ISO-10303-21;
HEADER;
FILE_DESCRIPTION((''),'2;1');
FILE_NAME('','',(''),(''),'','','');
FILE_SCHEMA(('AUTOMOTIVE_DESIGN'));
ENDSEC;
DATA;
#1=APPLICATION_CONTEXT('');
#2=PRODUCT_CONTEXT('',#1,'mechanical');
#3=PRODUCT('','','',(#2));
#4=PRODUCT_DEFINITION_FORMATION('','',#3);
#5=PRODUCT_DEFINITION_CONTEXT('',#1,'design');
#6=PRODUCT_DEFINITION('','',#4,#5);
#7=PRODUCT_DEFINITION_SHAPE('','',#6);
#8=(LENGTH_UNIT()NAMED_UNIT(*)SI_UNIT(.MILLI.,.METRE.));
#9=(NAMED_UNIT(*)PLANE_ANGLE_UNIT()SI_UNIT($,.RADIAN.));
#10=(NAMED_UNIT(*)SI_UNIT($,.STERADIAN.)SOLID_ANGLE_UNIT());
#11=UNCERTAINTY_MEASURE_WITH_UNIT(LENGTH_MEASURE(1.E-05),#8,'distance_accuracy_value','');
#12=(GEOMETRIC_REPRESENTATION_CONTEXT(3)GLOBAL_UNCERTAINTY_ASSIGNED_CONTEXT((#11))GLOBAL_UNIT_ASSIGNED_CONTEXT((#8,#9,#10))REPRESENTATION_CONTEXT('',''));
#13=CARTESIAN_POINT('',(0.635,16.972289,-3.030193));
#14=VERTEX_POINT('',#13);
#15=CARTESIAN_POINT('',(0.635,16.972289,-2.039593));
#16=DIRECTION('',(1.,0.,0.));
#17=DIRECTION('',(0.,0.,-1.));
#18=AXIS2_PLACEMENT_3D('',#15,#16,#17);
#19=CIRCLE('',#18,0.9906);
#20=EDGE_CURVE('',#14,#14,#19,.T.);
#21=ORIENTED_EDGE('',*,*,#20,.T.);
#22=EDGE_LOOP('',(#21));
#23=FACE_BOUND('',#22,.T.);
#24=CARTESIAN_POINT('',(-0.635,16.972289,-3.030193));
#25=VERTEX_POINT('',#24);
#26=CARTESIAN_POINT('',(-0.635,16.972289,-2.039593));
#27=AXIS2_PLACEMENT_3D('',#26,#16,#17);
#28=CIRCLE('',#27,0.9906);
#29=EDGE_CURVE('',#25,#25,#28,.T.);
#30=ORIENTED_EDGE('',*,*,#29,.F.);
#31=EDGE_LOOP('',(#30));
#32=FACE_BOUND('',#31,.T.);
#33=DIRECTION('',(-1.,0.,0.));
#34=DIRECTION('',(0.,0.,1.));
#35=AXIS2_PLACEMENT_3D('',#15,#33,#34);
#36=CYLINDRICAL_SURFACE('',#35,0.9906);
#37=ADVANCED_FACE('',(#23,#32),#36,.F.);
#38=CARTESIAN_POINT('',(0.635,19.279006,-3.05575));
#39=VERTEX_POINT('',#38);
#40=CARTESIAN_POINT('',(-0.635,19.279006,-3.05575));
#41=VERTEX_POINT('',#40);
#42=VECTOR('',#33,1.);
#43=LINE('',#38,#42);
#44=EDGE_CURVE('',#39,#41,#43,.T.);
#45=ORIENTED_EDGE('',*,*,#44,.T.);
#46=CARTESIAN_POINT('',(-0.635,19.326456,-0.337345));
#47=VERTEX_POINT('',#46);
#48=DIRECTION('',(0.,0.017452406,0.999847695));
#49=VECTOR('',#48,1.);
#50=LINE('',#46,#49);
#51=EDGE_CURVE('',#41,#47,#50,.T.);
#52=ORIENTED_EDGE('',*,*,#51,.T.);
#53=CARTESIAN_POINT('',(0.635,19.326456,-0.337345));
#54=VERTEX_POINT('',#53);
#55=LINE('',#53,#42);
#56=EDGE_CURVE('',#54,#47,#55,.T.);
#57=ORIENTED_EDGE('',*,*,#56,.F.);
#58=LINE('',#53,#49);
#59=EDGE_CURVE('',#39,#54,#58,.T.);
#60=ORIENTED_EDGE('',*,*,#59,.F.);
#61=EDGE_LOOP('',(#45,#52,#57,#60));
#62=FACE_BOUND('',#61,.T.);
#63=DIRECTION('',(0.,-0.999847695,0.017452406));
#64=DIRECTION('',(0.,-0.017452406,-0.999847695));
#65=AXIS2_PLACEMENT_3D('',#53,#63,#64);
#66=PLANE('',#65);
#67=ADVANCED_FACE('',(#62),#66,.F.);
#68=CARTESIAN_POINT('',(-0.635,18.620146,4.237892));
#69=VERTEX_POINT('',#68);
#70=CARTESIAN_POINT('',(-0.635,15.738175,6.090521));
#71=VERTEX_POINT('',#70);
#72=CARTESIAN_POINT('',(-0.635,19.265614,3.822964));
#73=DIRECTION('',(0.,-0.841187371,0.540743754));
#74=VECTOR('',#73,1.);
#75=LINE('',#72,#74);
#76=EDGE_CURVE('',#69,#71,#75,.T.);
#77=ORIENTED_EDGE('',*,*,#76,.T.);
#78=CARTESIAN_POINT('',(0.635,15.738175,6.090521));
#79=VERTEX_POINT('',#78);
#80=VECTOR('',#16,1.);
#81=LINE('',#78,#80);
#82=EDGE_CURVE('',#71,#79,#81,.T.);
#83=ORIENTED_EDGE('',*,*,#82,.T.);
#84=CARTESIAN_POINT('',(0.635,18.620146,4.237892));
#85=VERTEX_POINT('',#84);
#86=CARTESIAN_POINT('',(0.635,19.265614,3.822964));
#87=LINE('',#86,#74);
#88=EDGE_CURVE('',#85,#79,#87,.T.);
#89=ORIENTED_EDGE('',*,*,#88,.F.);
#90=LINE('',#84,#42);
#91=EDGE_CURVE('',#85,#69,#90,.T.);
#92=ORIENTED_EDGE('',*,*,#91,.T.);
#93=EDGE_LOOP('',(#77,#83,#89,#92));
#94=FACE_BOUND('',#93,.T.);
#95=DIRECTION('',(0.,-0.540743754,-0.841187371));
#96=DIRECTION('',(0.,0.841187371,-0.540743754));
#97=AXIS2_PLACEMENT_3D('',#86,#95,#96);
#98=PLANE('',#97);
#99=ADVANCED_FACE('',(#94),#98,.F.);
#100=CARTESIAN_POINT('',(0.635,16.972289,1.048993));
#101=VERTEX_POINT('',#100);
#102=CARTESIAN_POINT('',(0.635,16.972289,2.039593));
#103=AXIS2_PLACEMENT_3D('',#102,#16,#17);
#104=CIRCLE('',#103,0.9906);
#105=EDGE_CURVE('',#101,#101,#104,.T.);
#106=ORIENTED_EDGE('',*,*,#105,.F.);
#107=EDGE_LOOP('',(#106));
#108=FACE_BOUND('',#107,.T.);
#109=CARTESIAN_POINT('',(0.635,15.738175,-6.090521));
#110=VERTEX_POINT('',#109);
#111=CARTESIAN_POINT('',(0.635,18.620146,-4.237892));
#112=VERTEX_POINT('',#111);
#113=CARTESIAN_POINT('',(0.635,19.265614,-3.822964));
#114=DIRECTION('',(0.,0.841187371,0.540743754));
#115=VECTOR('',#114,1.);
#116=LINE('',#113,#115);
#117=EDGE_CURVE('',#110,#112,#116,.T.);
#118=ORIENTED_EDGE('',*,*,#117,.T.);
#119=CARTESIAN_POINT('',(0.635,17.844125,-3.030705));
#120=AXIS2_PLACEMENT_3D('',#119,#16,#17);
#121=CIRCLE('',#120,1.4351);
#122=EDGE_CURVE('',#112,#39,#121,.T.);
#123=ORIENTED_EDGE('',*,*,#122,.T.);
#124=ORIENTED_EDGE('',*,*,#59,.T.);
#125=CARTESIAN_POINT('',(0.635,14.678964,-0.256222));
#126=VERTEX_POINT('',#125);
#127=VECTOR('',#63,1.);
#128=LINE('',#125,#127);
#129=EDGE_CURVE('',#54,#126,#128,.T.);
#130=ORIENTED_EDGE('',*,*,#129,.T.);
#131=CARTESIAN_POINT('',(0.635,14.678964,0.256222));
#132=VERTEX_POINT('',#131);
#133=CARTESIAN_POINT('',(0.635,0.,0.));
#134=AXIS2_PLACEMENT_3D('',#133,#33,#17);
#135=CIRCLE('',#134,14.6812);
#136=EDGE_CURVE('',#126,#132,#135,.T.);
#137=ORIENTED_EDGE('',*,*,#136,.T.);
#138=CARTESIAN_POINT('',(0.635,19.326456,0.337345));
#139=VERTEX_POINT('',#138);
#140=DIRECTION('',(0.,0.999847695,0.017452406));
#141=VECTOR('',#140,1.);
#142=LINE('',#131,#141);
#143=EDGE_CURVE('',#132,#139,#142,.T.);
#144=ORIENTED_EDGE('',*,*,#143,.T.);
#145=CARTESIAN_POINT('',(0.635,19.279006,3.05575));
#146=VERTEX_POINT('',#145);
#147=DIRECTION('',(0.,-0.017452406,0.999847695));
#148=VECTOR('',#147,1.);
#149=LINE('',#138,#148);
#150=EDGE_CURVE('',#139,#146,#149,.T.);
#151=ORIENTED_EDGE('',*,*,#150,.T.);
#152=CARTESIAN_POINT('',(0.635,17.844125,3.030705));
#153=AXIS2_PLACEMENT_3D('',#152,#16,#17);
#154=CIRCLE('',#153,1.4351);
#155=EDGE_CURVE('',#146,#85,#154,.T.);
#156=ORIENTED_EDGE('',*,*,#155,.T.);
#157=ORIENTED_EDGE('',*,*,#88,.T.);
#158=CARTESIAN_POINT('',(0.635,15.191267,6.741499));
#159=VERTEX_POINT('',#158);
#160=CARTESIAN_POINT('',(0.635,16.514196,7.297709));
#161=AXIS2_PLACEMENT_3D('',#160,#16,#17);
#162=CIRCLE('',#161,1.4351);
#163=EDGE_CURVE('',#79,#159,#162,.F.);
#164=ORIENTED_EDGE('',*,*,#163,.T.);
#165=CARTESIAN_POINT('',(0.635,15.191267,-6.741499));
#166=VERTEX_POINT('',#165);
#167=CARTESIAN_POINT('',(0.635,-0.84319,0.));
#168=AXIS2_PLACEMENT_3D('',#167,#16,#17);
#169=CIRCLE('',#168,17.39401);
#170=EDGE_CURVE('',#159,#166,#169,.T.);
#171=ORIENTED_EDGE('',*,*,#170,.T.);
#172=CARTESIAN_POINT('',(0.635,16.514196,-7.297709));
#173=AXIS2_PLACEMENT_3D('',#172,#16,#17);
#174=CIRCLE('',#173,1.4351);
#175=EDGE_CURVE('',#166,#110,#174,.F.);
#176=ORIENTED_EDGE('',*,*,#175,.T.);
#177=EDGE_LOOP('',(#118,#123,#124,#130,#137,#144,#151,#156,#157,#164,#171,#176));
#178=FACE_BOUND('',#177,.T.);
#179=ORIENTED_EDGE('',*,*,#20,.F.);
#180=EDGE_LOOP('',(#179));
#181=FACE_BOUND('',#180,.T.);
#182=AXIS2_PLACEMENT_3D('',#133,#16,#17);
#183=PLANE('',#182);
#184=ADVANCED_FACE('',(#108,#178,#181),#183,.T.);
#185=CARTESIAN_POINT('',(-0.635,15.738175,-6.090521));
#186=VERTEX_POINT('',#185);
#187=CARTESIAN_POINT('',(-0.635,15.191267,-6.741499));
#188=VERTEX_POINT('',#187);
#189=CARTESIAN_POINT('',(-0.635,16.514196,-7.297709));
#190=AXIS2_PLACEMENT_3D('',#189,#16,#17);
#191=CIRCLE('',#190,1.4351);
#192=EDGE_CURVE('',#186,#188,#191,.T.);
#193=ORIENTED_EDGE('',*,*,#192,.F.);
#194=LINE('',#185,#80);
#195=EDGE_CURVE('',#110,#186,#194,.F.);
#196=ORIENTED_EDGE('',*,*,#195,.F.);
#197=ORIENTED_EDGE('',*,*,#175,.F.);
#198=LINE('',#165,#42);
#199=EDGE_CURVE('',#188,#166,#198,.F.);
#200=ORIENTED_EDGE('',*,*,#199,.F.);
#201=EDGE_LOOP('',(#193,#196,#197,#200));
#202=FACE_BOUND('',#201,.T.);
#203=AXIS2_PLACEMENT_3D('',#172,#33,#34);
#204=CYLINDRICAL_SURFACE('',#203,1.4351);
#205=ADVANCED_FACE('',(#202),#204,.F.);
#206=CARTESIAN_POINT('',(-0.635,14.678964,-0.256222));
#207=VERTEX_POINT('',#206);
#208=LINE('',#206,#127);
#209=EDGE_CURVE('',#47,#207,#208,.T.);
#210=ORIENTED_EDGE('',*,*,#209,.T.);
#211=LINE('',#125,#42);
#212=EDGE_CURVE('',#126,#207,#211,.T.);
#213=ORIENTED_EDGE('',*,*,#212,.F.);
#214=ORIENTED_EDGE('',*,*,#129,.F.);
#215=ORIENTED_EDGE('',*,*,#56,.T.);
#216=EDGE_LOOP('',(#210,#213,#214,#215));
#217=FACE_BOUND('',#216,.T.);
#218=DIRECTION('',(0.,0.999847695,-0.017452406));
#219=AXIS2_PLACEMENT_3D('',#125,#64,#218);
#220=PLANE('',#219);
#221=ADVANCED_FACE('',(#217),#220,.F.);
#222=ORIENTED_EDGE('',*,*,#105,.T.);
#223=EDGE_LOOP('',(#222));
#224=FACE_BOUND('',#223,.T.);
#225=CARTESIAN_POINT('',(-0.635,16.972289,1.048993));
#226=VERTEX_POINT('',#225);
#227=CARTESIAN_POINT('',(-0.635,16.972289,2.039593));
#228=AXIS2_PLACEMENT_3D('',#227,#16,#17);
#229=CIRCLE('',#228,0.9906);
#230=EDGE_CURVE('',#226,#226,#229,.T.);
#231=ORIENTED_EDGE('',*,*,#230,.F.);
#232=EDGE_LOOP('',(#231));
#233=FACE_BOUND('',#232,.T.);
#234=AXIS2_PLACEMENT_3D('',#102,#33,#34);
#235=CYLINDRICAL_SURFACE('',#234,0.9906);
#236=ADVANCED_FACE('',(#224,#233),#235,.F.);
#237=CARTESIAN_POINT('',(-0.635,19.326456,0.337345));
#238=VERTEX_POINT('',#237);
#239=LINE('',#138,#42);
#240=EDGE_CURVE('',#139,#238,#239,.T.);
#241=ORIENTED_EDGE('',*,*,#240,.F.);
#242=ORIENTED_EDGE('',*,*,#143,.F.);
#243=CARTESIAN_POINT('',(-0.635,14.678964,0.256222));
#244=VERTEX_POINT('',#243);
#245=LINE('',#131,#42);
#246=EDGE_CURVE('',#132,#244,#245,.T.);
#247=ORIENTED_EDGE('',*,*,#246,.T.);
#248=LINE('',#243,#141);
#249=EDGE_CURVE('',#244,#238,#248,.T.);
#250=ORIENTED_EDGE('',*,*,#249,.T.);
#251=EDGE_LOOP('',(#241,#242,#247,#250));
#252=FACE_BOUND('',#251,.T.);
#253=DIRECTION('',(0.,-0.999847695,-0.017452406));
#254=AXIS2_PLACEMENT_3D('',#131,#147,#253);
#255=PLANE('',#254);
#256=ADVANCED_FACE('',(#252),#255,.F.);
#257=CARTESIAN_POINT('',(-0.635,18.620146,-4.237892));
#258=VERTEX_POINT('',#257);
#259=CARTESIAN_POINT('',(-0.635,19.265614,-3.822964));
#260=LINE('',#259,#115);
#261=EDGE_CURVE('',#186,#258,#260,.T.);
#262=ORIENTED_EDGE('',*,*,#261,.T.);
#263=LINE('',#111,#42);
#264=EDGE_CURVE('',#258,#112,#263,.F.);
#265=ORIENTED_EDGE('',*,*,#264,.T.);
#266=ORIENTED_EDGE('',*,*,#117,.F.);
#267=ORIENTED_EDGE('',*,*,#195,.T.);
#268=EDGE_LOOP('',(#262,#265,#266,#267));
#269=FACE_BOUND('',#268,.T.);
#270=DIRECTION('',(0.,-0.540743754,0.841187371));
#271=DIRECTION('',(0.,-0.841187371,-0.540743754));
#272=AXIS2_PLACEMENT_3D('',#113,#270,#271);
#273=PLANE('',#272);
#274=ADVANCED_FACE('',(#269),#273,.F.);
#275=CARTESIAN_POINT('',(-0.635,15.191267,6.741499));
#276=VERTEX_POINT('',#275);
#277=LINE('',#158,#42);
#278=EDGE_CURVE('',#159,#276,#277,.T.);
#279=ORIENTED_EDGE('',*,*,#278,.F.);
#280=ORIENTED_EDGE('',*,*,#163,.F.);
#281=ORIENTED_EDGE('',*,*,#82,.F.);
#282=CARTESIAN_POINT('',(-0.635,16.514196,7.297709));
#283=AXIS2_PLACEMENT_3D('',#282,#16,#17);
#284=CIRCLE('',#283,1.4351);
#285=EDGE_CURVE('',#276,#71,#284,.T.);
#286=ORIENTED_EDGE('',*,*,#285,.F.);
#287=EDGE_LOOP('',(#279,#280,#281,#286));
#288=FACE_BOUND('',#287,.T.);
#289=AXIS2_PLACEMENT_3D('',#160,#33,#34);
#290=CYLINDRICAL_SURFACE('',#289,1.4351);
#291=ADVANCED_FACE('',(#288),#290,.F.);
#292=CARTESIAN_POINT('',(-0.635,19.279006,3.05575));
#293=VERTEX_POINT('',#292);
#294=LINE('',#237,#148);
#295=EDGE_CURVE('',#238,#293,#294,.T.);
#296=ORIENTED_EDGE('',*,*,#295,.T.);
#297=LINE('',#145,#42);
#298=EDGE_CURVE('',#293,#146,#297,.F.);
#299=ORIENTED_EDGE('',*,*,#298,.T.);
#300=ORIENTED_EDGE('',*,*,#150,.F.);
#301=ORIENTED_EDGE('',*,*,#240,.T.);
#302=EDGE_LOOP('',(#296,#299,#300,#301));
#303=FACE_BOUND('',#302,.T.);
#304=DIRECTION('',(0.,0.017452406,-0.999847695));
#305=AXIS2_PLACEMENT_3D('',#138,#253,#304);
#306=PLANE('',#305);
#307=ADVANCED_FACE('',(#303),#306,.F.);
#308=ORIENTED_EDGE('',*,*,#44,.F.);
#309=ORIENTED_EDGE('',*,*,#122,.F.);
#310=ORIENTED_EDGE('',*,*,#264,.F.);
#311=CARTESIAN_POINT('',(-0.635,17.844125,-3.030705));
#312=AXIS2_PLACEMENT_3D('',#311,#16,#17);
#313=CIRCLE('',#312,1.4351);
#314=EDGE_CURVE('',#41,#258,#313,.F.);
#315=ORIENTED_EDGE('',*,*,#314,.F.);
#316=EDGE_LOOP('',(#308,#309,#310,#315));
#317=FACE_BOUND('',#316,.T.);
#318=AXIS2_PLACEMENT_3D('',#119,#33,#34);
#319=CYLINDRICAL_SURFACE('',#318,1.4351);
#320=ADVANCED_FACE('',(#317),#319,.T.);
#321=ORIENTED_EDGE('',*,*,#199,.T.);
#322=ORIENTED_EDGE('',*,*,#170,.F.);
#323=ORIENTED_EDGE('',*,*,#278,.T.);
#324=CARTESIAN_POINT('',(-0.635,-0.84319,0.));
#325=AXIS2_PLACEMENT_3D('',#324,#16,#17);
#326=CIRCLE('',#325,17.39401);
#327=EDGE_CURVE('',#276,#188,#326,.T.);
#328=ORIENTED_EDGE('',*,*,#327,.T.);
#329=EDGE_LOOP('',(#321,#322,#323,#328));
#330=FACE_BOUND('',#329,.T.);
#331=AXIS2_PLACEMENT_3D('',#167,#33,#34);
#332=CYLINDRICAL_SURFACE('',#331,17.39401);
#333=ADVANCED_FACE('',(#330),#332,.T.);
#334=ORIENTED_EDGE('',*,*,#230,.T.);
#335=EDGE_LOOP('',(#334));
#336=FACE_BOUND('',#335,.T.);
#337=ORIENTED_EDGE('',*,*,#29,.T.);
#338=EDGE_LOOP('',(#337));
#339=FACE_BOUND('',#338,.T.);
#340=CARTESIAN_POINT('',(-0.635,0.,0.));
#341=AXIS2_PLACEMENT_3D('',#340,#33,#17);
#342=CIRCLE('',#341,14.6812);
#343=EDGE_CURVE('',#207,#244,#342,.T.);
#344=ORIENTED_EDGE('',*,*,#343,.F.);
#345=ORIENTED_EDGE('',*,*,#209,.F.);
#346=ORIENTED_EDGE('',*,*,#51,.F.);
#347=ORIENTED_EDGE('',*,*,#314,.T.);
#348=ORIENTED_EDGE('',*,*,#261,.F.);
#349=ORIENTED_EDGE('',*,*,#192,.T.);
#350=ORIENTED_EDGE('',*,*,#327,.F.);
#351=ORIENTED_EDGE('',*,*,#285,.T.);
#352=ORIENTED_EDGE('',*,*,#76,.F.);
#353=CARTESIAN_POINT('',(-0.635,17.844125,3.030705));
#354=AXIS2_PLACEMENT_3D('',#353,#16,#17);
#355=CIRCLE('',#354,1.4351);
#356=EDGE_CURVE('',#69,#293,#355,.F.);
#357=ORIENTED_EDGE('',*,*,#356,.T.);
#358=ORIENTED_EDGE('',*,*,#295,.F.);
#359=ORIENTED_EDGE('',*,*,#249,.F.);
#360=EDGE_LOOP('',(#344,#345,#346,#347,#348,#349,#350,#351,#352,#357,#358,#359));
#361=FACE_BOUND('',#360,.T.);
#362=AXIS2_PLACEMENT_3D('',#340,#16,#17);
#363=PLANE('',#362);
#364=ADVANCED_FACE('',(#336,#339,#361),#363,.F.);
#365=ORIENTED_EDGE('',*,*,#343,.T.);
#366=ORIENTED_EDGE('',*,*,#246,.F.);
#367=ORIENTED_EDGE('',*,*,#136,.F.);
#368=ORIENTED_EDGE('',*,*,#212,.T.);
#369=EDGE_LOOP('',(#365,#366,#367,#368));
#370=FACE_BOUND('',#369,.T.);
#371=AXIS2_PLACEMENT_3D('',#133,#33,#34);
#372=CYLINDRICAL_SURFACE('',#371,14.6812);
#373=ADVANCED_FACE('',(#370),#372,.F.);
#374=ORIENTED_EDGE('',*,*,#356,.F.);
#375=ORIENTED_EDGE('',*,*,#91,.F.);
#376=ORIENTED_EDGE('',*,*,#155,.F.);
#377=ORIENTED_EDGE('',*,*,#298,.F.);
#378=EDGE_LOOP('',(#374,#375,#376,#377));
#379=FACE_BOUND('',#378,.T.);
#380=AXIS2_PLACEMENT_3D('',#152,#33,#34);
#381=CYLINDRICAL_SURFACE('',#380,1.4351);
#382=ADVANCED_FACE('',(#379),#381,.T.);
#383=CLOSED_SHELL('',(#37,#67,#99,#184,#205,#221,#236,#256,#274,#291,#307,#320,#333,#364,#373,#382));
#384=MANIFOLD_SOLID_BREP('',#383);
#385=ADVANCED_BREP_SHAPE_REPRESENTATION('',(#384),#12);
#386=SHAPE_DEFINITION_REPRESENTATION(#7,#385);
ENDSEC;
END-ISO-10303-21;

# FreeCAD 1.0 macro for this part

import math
import FreeCAD as App
import Part
import Sketcher

V = App.Vector
Q = App.Units.Quantity


def edges_at(feature, points):
    """Names of the edges that pass closest to the given points."""
    edges = feature.Shape.Edges
    near = lambda p: min(range(len(edges)), key=lambda i: edges[i].distToShape(Part.Vertex(*p))[0])
    return sorted({f"Edge{near(p) + 1}" for p in points})

doc = App.newDocument("Part")
body = doc.addObject("PartDesign::Body", "Body")

sketch1 = doc.addObject("Sketcher::SketchObject", "Sketch")
body.addObject(sketch1)
sketch1.AttachmentSupport = (doc.YZ_Plane, [""])
sketch1.MapMode = "FlatFace"
sketch1.addGeometry([
    Part.LineSegment(V(14.7, 0.3, 0), V(19.3, 0.3, 0)),
    Part.LineSegment(V(19.3, 0.3, 0), V(19.3, 3.8, 0)),
    Part.LineSegment(V(19.3, 3.8, 0), V(15.4, 6.3, 0)),
    Part.ArcOfCircle(Part.Circle(V(-0.8, 0, 0), V(0, 0, 1), 17.4), math.radians(21), math.radians(339)),
    Part.LineSegment(V(15.4, -6.3, 0), V(19.3, -3.8, 0)),
    Part.LineSegment(V(19.3, -3.8, 0), V(19.3, -0.3, 0)),
    Part.LineSegment(V(19.3, -0.3, 0), V(14.7, -0.3, 0)),
    Part.ArcOfCircle(Part.Circle(V(0, 0, 0), V(0, 0, 1), 14.7), math.radians(1), math.radians(359)),
    Part.Circle(V(17, 2, 0), V(0, 0, 1), 1),
    Part.Circle(V(17, -2, 0), V(0, 0, 1), 1),
], False)
sketch1.addConstraint([
    Sketcher.Constraint("Coincident", 0, 2, 1, 1),
    Sketcher.Constraint("Coincident", 1, 2, 2, 1),
    Sketcher.Constraint("Coincident", 2, 2, 3, 1),
    Sketcher.Constraint("Coincident", 3, 2, 4, 1),
    Sketcher.Constraint("Coincident", 4, 2, 5, 1),
    Sketcher.Constraint("Coincident", 5, 2, 6, 1),
    Sketcher.Constraint("Coincident", 6, 2, 7, 2),
    Sketcher.Constraint("Coincident", 7, 1, 0, 1),
    Sketcher.Constraint("Coincident", 7, 3, -1, 1),
    Sketcher.Constraint("Equal", 8, 9),
    Sketcher.Constraint("Symmetric", 8, 3, 9, 3, -1),
    Sketcher.Constraint("Symmetric", 2, 2, 3, 2, -1),
    Sketcher.Constraint("Symmetric", 1, 2, 4, 2, -1),
    Sketcher.Constraint("Symmetric", 0, 2, 5, 2, -1),
    Sketcher.Constraint("Perpendicular", 0, 1),
    Sketcher.Constraint("Perpendicular", 5, 6),
    Sketcher.Constraint("Equal", 0, 2),
    Sketcher.Constraint("Diameter", 8, Q("0.078 in")),
    Sketcher.Constraint("Angle", 0, Q("1 deg")),
    Sketcher.Constraint("Radius", 7, Q("0.578 in")),
    Sketcher.Constraint("Distance", 0, Q("0.183 in")),
    Sketcher.Constraint("Radius", 3, Q("17.39401 mm")),
    Sketcher.Constraint("Distance", 1, Q("3.48615 mm")),
    Sketcher.Constraint("DistanceX", 3, 3, -1, 1, Q("0.84319 mm")),
    Sketcher.Constraint("DistanceX", -1, 1, 8, 3, Q("16.972289 mm")),
    Sketcher.Constraint("DistanceY", -1, 1, 2, 2, Q("6.336449 mm")),
    Sketcher.Constraint("DistanceY", 0, 2, 8, 3, Q("1.702248 mm")),
])
pad1 = doc.addObject("PartDesign::Pad", "Pad")
body.addObject(pad1)
pad1.Profile = sketch1
pad1.Length = Q("0.05 in")
pad1.Midplane = True
doc.recompute()

fillet = doc.addObject("PartDesign::Fillet", "Fillet")
body.addObject(fillet)
fillet.Base = (pad1, edges_at(pad1, [
    (0, 19.266, -3.823),
    (0, 15.356, -6.336),
    (0, 15.356, 6.336),
    (0, 19.266, 3.823),
]))
fillet.Radius = Q("0.0565 in")

doc.recompute()
